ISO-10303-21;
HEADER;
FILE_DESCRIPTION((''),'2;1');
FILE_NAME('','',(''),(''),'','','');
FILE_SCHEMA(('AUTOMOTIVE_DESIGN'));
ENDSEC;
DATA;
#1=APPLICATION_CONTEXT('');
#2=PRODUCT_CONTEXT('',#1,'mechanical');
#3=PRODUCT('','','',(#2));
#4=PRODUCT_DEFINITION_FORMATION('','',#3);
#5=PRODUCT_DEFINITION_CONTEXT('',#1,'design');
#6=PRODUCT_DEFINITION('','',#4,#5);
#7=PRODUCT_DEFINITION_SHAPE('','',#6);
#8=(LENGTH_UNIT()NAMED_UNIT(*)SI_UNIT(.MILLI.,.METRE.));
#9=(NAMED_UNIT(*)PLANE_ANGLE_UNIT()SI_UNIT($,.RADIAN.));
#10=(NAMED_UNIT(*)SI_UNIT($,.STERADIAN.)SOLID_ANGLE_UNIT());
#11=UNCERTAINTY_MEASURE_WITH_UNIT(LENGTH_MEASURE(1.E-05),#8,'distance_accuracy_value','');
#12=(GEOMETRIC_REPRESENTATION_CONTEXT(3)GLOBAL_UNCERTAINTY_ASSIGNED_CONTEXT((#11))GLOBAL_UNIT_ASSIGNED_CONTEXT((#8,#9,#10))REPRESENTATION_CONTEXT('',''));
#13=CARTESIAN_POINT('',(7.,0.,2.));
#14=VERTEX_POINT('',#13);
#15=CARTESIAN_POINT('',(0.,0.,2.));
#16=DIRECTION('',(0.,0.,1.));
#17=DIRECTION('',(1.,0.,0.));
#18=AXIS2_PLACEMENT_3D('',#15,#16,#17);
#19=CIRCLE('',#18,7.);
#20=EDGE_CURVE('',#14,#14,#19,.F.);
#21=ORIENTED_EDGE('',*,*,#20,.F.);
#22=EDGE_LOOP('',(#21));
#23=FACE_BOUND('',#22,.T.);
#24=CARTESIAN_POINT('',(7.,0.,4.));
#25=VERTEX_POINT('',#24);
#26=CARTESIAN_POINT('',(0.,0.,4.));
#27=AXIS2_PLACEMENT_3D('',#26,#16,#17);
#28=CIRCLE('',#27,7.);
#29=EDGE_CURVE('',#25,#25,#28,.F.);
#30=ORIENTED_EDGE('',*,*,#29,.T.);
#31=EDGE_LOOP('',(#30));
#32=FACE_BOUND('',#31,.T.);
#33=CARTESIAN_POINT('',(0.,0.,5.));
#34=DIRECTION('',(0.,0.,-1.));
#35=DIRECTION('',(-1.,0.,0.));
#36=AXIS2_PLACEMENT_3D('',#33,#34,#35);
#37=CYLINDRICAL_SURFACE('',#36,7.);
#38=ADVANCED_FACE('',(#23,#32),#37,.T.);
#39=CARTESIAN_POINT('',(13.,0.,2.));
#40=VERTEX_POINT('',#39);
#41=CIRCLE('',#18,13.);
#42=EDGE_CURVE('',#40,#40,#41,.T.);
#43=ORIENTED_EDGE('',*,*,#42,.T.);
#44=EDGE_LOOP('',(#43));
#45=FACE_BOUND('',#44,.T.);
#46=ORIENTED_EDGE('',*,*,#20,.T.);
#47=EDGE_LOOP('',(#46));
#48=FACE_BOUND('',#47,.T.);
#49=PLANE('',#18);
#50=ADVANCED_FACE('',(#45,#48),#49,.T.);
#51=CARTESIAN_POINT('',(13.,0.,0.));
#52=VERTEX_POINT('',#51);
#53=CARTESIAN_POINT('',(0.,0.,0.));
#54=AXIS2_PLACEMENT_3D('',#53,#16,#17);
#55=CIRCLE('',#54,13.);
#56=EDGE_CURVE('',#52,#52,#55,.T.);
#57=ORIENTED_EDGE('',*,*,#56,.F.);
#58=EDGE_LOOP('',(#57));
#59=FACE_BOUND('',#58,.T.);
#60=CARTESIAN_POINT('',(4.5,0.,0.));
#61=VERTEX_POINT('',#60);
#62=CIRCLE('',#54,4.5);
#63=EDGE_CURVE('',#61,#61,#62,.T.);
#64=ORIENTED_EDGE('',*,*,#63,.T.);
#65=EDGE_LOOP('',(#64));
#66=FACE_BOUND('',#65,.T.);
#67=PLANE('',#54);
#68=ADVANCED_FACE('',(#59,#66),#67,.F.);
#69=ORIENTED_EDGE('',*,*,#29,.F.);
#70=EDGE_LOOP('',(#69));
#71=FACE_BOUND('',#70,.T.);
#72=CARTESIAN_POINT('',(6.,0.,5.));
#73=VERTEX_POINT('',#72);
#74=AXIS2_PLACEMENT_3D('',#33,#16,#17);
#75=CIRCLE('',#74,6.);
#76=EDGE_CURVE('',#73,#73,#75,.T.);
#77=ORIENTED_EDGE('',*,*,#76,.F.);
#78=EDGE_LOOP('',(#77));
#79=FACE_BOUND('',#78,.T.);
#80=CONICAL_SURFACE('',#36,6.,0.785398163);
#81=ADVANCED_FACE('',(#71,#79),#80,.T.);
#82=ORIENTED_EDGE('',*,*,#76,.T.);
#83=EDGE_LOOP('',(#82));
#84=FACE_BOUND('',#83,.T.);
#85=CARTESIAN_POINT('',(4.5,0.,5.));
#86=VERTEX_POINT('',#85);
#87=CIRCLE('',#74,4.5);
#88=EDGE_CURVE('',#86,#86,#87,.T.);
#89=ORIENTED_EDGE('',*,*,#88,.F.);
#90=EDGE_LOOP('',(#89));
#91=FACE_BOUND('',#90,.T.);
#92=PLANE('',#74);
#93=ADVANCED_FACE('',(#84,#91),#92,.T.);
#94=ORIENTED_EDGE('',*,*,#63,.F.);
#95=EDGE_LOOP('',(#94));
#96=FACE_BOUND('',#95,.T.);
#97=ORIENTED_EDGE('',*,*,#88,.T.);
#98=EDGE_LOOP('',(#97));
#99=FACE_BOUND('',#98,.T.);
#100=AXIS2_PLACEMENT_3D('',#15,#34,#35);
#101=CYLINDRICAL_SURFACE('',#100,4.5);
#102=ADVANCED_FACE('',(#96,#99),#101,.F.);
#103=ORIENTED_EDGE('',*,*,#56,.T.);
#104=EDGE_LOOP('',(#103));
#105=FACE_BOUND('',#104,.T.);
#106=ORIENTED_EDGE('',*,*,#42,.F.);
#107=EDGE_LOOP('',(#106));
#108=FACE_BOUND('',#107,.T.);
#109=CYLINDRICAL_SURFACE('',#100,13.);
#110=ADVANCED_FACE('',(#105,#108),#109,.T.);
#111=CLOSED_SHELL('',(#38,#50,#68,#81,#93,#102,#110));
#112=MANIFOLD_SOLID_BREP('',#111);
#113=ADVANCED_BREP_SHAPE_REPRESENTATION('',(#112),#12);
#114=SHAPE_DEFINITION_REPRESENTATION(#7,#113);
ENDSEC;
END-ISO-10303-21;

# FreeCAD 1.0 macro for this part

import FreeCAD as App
import Part
import Sketcher
from FreeCAD import Vector
Q = App.Units.Quantity


def edges_at(feature, points):
    """Names of the edges that pass closest to the given points."""
    edges = feature.Shape.Edges
    near = lambda p: min(range(len(edges)), key=lambda i: edges[i].distToShape(Part.Vertex(*p))[0])
    return sorted({f"Edge{near(p) + 1}" for p in points})

doc = App.newDocument("Part")
body = doc.addObject("PartDesign::Body", "Body")

sketch1 = body.newObject("Sketcher::SketchObject", "Sketch")
sketch1.AttachmentSupport = (doc.getObject("XY_Plane"), [""])
sketch1.MapMode = "FlatFace"
sketch1.addGeometry(Part.Circle(Vector(0, 0, 0), Vector(0, 0, 1), 13), False)
sketch1.addGeometry(Part.Circle(Vector(0, 0, 0), Vector(0, 0, 1), 4.5), False)
sketch1.addConstraint(Sketcher.Constraint("Coincident", 0, 3, -1, 1))
sketch1.addConstraint(Sketcher.Constraint("Coincident", 1, 3, -1, 1))
sketch1.addConstraint(Sketcher.Constraint("Diameter", 0, Q("26 mm")))
sketch1.addConstraint(Sketcher.Constraint("Diameter", 1, Q("9 mm")))
pad1 = body.newObject("PartDesign::Pad", "Pad")
pad1.Profile = sketch1
pad1.Length = 2

sketch2 = body.newObject("Sketcher::SketchObject", "Sketch001")
sketch2.AttachmentSupport = (doc.getObject("XY_Plane"), [""])
sketch2.MapMode = "FlatFace"
sketch2.addGeometry(Part.Circle(Vector(0, 0, 0), Vector(0, 0, 1), 7), False)
sketch2.addGeometry(Part.Circle(Vector(0, 0, 0), Vector(0, 0, 1), 4.5), False)
sketch2.addConstraint(Sketcher.Constraint("Coincident", 0, 3, -1, 1))
sketch2.addConstraint(Sketcher.Constraint("Coincident", 1, 3, -1, 1))
sketch2.addConstraint(Sketcher.Constraint("Diameter", 0, Q("14 mm")))
sketch2.addConstraint(Sketcher.Constraint("Diameter", 1, Q("9 mm")))
pad2 = body.newObject("PartDesign::Pad", "Pad001")
pad2.Profile = sketch2
pad2.Length = 5
doc.recompute()

chamfer = body.newObject("PartDesign::Chamfer", "Chamfer")
chamfer.Base = (pad2, edges_at(pad2, [(-7, 0, 5)]))
chamfer.Size = 1

doc.recompute()
